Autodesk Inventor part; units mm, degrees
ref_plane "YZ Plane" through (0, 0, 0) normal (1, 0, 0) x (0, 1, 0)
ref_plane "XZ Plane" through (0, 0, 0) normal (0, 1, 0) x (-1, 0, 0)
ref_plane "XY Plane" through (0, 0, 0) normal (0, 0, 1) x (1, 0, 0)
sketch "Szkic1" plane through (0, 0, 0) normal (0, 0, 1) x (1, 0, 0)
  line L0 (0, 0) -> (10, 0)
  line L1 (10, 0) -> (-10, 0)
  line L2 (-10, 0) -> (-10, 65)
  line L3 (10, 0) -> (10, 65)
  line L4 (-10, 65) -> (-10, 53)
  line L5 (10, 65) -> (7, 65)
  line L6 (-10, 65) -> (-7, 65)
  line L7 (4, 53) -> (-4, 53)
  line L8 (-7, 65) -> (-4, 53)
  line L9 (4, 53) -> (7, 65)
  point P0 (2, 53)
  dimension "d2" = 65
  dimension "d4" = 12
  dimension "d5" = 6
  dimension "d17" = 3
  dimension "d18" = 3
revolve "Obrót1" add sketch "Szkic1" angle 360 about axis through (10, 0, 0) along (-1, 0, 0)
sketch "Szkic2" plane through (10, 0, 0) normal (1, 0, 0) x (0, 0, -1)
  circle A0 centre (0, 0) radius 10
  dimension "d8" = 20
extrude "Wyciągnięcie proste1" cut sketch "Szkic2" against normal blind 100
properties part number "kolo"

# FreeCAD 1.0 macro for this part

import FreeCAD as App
import Part
import Sketcher

V = App.Vector
Q = App.Units.Quantity

doc = App.newDocument("Part")
body = doc.addObject("PartDesign::Body", "Body")

sketch1 = body.newObject("Sketcher::SketchObject", "Sketch")
sketch1.AttachmentSupport = (doc.getObject("XY_Plane"), [""])
sketch1.MapMode = "FlatFace"
sketch1.addGeometry([
    Part.LineSegment(V(-10, 0, 0), V(10, 0, 0)),
    Part.LineSegment(V(10, 0, 0), V(10, 65, 0)),
    Part.LineSegment(V(10, 65, 0), V(7, 65, 0)),
    Part.LineSegment(V(7, 65, 0), V(4, 53, 0)),
    Part.LineSegment(V(4, 53, 0), V(-4, 53, 0)),
    Part.LineSegment(V(-4, 53, 0), V(-7, 65, 0)),
    Part.LineSegment(V(-7, 65, 0), V(-10, 65, 0)),
    Part.LineSegment(V(-10, 65, 0), V(-10, 0, 0)),
], False)
sketch1.addConstraint([
    Sketcher.Constraint("Coincident", 0, 2, 1, 1),
    Sketcher.Constraint("Coincident", 1, 2, 2, 1),
    Sketcher.Constraint("Coincident", 2, 2, 3, 1),
    Sketcher.Constraint("Coincident", 3, 2, 4, 1),
    Sketcher.Constraint("Coincident", 4, 2, 5, 1),
    Sketcher.Constraint("Coincident", 5, 2, 6, 1),
    Sketcher.Constraint("Coincident", 6, 2, 7, 1),
    Sketcher.Constraint("Coincident", 7, 2, 0, 1),
    Sketcher.Constraint("Horizontal", 0),
    Sketcher.Constraint("Vertical", 1),
    Sketcher.Constraint("Horizontal", 2),
    Sketcher.Constraint("Horizontal", 4),
    Sketcher.Constraint("Horizontal", 6),
    Sketcher.Constraint("Vertical", 7),
    Sketcher.Constraint("Symmetric", 0, 2, 7, 2, -1, 1),
    Sketcher.Constraint("Symmetric", 2, 2, 5, 2, -2),
    Sketcher.Constraint("Equal", 3, 5),
    Sketcher.Constraint("DistanceX", 2, 2, 2, 1, Q("3 mm")),
    Sketcher.Constraint("DistanceY", 1, 1, 1, 2, Q("65 mm")),
    Sketcher.Constraint("DistanceX", 3, 2, 2, 2, Q("3 mm")),
    Sketcher.Constraint("DistanceY", 3, 2, 2, 2, Q("12 mm")),
    Sketcher.Constraint("DistanceX", 0, 1, 0, 2, Q("20 mm")),
])
revolution = body.newObject("PartDesign::Revolution", "Revolution")
revolution.Profile = sketch1
revolution.ReferenceAxis = (sketch1, ["H_Axis"])
revolution.Angle = 360

sketch2 = body.newObject("Sketcher::SketchObject", "Sketch001")
sketch2.AttachmentSupport = (doc.getObject("YZ_Plane"), [""])
sketch2.MapMode = "FlatFace"
sketch2.AttachmentOffset = App.Placement(V(0, 0, 10), App.Rotation())
sketch2.addGeometry(Part.Circle(V(0, 0, 0), V(0, 0, 1), 10), False)
sketch2.addConstraint([
    Sketcher.Constraint("Coincident", 0, 3, -1, 1),
    Sketcher.Constraint("Diameter", 0, Q("20 mm")),
])
pocket1 = body.newObject("PartDesign::Pocket", "Pocket")
pocket1.Profile = sketch2
pocket1.Length = 100

doc.recompute()
